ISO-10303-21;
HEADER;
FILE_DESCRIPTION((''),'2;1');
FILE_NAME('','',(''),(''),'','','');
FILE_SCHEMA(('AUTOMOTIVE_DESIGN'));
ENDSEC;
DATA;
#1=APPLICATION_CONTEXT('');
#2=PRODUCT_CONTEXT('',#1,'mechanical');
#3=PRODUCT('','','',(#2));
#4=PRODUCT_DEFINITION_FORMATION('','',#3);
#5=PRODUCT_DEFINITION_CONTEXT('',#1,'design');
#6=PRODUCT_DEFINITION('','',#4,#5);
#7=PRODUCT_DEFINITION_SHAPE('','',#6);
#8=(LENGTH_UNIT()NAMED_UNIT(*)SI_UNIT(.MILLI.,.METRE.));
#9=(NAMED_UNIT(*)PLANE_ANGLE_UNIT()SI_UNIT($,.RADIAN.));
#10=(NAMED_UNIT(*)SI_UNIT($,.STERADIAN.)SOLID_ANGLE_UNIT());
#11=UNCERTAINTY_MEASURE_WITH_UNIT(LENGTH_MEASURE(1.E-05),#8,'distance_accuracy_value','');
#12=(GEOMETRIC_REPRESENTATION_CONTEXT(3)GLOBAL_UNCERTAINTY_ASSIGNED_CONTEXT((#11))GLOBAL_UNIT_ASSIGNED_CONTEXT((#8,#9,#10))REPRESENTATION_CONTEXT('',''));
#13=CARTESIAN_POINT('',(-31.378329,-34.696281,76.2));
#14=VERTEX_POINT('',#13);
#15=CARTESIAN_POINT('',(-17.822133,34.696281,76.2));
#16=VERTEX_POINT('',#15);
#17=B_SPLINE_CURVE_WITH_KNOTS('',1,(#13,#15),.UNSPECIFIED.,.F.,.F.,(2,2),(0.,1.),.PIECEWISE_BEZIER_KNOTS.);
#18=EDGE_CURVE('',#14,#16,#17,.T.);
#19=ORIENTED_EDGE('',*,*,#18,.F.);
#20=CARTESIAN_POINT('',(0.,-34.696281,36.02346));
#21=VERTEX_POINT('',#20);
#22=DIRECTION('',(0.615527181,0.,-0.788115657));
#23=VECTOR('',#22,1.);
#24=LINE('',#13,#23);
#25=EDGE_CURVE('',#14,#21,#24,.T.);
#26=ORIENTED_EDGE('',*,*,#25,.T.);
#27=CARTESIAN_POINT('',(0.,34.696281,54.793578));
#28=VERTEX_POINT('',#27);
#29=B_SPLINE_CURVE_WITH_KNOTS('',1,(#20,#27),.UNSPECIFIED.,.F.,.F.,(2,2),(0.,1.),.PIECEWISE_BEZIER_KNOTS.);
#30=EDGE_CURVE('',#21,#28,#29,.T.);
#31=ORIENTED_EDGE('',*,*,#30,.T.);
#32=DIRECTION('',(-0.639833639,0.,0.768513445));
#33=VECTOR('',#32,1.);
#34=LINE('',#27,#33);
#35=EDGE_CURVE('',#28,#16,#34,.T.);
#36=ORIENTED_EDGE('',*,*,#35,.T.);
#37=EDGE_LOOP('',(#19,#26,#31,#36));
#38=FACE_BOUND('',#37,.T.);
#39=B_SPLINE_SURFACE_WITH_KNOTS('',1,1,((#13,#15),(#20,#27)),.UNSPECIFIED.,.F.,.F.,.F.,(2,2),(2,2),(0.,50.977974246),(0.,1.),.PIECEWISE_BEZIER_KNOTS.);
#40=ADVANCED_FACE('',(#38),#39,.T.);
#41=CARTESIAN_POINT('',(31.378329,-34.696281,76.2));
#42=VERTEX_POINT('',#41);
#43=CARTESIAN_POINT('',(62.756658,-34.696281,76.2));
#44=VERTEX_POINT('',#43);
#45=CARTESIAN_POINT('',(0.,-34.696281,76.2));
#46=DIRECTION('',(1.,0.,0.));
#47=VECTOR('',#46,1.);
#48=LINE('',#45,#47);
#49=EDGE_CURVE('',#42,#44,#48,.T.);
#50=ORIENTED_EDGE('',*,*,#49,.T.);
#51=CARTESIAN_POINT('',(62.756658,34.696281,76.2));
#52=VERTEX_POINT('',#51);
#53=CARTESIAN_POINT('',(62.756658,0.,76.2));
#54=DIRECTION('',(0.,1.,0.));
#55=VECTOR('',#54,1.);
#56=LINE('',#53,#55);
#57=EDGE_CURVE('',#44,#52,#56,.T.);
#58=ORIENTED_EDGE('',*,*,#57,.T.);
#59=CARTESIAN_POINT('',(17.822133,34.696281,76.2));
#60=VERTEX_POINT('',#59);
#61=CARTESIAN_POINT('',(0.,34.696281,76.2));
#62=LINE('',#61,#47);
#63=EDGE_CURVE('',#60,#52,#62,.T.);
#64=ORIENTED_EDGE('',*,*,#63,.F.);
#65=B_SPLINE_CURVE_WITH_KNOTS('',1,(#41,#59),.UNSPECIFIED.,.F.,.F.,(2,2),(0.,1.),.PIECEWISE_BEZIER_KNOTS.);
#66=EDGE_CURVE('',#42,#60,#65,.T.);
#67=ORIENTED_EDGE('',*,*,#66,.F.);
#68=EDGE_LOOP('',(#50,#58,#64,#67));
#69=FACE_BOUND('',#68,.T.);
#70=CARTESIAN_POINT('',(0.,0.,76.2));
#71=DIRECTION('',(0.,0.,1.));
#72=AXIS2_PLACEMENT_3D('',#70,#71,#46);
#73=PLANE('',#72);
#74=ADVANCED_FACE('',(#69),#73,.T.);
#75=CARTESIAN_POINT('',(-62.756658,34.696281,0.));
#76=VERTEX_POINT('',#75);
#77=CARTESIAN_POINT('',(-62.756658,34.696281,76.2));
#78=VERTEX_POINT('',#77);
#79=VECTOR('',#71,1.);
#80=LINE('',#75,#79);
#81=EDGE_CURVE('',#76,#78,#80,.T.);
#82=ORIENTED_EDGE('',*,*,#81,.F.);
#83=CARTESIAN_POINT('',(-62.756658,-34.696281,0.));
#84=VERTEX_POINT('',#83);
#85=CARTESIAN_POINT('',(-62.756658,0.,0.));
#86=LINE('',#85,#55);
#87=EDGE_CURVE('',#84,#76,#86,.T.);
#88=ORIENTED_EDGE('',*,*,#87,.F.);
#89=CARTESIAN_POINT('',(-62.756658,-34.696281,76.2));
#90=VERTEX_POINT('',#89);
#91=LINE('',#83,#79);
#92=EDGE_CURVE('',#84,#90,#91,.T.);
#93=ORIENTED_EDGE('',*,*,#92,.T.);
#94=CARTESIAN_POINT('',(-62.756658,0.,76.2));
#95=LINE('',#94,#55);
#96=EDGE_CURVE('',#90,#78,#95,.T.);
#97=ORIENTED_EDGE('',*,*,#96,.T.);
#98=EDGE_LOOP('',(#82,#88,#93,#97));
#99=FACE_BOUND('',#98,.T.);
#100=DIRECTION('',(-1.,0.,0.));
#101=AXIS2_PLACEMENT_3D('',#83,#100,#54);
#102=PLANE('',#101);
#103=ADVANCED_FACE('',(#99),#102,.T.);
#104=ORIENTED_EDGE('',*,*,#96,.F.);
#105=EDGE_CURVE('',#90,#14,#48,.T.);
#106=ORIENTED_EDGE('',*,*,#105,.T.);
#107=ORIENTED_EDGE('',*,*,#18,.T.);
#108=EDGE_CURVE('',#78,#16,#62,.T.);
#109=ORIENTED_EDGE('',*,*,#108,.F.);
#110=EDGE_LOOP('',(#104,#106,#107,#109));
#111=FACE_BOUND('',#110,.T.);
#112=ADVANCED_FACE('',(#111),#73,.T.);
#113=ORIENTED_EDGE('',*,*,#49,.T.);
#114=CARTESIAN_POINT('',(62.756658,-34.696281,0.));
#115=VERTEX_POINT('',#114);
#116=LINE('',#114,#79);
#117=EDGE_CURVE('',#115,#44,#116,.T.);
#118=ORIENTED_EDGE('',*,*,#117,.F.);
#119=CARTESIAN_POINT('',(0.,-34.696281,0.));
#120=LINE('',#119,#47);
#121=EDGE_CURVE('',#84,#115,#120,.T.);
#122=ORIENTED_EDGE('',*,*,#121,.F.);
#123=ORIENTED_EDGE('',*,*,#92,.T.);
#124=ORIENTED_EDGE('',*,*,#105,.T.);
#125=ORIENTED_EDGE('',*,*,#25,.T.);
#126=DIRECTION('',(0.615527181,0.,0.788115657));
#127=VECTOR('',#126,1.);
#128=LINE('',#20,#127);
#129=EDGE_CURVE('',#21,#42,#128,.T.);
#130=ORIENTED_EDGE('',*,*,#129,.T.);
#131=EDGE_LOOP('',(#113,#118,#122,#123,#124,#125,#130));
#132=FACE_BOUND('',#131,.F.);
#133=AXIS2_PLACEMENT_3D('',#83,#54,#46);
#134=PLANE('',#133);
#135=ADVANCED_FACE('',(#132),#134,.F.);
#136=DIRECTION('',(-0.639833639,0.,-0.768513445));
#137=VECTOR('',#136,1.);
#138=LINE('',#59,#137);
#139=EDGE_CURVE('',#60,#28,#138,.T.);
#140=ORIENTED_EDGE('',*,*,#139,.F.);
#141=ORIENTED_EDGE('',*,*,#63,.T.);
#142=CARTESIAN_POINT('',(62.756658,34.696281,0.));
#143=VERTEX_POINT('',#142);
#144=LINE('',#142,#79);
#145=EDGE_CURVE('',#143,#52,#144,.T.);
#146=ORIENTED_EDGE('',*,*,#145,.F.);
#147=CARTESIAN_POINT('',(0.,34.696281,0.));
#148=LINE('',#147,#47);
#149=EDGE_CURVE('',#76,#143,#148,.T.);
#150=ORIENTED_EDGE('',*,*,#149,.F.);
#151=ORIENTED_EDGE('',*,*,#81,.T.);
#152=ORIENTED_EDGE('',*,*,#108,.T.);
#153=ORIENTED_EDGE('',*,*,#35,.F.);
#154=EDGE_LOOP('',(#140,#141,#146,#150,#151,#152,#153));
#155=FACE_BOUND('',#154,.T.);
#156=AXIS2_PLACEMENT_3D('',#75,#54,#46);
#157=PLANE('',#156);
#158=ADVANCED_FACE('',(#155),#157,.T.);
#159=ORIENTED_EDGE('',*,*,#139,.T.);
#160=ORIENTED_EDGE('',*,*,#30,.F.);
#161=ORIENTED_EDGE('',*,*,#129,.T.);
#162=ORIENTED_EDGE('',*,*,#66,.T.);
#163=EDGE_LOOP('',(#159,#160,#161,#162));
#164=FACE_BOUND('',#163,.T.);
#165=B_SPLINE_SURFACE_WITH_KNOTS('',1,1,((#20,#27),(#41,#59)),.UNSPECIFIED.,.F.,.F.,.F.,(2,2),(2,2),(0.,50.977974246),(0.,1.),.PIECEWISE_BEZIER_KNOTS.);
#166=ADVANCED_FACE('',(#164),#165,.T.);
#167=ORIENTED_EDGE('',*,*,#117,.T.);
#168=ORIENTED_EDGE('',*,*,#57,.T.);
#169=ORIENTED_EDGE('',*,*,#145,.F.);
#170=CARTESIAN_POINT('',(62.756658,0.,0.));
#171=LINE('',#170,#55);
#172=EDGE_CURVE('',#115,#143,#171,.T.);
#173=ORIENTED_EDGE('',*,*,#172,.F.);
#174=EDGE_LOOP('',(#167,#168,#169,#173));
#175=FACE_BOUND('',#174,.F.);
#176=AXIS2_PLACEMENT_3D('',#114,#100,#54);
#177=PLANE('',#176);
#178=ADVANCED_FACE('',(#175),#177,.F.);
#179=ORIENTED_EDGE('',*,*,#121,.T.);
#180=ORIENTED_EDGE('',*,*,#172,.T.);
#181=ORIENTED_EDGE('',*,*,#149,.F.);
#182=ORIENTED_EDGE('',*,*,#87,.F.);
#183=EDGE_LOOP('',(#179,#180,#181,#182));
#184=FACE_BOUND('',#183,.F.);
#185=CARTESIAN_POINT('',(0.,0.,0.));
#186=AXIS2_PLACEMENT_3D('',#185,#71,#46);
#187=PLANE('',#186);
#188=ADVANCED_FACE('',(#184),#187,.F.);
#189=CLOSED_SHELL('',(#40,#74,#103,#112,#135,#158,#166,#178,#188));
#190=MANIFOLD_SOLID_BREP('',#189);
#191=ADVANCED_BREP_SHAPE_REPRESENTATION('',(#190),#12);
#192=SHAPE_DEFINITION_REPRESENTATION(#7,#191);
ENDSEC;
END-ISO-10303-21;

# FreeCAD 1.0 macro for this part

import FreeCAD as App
import Part
import Sketcher
Q = App.Units.Quantity


def add_polygon(sketch, points):
    """Adds a closed chain of lines whose ends are joined by coincident constraints."""
    first, n = sketch.GeometryCount, len(points)
    for a, b in zip(points, points[1:] + points[:1]):
        sketch.addGeometry(Part.LineSegment(App.Vector(*a, 0), App.Vector(*b, 0)), False)
    for i in range(n):
        sketch.addConstraint(Sketcher.Constraint("Coincident", first + i, 2, first + (i + 1) % n, 1))

doc = App.newDocument("Part")
body = doc.addObject("PartDesign::Body", "Body")

# Sketch on XY plane
sketch1 = doc.addObject("Sketcher::SketchObject", "Sketch")
body.addObject(sketch1)
sketch1.AttachmentSupport = (doc.XY_Plane, [""])
sketch1.MapMode = "FlatFace"
add_polygon(sketch1, [(-62.756658, 34.696281), (-62.756658, -34.696281), (62.756658, -34.696281), (62.756658, 34.696281)])  # lines 0-3
sketch1.addConstraint([
    Sketcher.Constraint("Vertical", 0),
    Sketcher.Constraint("Horizontal", 1),
    Sketcher.Constraint("Vertical", 2),
    Sketcher.Constraint("Horizontal", 3),
    Sketcher.Constraint("Symmetric", 0, 2, 2, 2, -1, 1),
    Sketcher.Constraint("DistanceY", 0, 2, 0, 1, 69.392562),
    Sketcher.Constraint("DistanceX", 1, 1, 1, 2, 125.513315),
])
pad1 = doc.addObject("PartDesign::Pad", "Pad")
body.addObject(pad1)
pad1.Profile = sketch1
pad1.Length = Q("3 in")

# Sketch on XZ plane
sketch2 = doc.addObject("Sketcher::SketchObject", "Sketch001")
body.addObject(sketch2)
sketch2.AttachmentSupport = (doc.XZ_Plane, [""])
sketch2.MapMode = "FlatFace"
sketch2.AttachmentOffset = App.Placement(App.Vector(0, 0, 34.696281), App.Rotation())
add_polygon(sketch2, [(31.378329, 76.2), (-31.378329, 76.2), (0, 36.02346)])  # lines 0-2
sketch2.addConstraint([
    Sketcher.Constraint("Horizontal", 0),
    Sketcher.Constraint("PointOnObject", 1, 2, -2),
    Sketcher.Constraint("Equal", 1, 2),
    Sketcher.Constraint("DistanceY", -1, 1, 0, 2, Q("3 in")),
    Sketcher.Constraint("DistanceX", 0, 2, 0, 1, 62.756658),
    Sketcher.Constraint("DistanceY", -1, 1, 1, 2, 36.02346),
])

# Sketch on XZ plane
sketch3 = doc.addObject("Sketcher::SketchObject", "Sketch002")
body.addObject(sketch3)
sketch3.AttachmentSupport = (doc.XZ_Plane, [""])
sketch3.MapMode = "FlatFace"
sketch3.AttachmentOffset = App.Placement(App.Vector(0, 0, -34.696281), App.Rotation())
add_polygon(sketch3, [(17.822133, 76.2), (0, 54.793578), (-17.822133, 76.2)])  # lines 0-2
sketch3.addConstraint([
    Sketcher.Constraint("Horizontal", 2),
    Sketcher.Constraint("PointOnObject", 0, 2, -2),
    Sketcher.Constraint("Equal", 0, 1),
    Sketcher.Constraint("DistanceY", -1, 1, 1, 2, Q("3 in")),
    Sketcher.Constraint("DistanceX", 2, 1, 2, 2, 35.644267),
    Sketcher.Constraint("Distance", 0, 27.854324),
])

subtractiveloft = doc.addObject("PartDesign::SubtractiveLoft", "SubtractiveLoft")
body.addObject(subtractiveloft)
subtractiveloft.Profile = sketch2
subtractiveloft.Sections = [sketch3]

doc.recompute()
